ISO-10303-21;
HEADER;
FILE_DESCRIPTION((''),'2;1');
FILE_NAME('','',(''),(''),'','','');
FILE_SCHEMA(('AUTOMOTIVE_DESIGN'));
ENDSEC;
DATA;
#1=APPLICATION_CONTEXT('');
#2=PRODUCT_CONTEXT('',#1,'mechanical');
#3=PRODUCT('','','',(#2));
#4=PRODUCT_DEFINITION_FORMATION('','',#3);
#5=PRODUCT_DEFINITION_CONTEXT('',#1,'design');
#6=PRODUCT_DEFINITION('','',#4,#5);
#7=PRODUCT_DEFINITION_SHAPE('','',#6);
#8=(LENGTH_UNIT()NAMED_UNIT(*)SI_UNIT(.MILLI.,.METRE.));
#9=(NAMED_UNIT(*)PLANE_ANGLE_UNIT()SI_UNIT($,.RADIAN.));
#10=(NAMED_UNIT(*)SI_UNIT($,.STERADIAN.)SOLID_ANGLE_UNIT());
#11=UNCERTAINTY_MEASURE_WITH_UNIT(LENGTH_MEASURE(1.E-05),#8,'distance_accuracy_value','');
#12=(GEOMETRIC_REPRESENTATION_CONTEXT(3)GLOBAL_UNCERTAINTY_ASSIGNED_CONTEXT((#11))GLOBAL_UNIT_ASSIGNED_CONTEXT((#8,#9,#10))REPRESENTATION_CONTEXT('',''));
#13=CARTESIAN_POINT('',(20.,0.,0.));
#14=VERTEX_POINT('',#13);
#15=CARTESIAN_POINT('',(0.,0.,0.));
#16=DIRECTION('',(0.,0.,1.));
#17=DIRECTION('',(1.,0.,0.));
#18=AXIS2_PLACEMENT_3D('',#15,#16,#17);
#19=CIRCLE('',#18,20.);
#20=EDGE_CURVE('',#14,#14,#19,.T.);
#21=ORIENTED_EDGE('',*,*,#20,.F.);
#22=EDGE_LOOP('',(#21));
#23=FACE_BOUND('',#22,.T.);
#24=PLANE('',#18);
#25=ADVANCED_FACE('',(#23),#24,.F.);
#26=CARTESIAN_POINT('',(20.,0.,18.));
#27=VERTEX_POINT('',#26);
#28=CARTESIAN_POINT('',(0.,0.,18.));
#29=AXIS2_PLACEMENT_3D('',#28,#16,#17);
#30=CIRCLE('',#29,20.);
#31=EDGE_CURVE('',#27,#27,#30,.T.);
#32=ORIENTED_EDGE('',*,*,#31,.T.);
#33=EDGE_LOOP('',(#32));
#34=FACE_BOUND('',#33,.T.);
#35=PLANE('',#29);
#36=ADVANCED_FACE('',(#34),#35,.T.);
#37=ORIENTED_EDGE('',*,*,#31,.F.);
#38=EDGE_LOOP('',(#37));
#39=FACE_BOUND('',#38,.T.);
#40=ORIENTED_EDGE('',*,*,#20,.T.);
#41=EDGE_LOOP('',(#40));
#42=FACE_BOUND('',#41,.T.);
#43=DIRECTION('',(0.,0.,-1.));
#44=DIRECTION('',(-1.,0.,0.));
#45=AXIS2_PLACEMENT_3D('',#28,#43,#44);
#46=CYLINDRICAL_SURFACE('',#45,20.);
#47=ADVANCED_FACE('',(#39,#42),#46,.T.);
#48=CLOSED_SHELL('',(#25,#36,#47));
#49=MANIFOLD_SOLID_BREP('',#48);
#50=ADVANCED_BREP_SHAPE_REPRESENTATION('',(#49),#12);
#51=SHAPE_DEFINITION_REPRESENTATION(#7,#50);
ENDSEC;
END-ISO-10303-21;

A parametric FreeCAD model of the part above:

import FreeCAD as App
import Part
import Sketcher

V = App.Vector

doc = App.newDocument("Part")
body = doc.addObject("PartDesign::Body", "Body")

# Sketch on XY plane
sketch1 = body.newObject("Sketcher::SketchObject", "Sketch")
sketch1.AttachmentSupport = (doc.getObject("XY_Plane"), [""])
sketch1.MapMode = "FlatFace"
sketch1.addGeometry(Part.Circle(V(0, 0, 0), V(0, 0, 1), 20), False)
sketch1.addConstraint([
    Sketcher.Constraint("Coincident", 0, 3, -1, 1),
    Sketcher.Constraint("Diameter", 0, 40.0),
])
pad1 = body.newObject("PartDesign::Pad", "Pad")
pad1.Profile = sketch1
pad1.Length = 18

doc.recompute()
